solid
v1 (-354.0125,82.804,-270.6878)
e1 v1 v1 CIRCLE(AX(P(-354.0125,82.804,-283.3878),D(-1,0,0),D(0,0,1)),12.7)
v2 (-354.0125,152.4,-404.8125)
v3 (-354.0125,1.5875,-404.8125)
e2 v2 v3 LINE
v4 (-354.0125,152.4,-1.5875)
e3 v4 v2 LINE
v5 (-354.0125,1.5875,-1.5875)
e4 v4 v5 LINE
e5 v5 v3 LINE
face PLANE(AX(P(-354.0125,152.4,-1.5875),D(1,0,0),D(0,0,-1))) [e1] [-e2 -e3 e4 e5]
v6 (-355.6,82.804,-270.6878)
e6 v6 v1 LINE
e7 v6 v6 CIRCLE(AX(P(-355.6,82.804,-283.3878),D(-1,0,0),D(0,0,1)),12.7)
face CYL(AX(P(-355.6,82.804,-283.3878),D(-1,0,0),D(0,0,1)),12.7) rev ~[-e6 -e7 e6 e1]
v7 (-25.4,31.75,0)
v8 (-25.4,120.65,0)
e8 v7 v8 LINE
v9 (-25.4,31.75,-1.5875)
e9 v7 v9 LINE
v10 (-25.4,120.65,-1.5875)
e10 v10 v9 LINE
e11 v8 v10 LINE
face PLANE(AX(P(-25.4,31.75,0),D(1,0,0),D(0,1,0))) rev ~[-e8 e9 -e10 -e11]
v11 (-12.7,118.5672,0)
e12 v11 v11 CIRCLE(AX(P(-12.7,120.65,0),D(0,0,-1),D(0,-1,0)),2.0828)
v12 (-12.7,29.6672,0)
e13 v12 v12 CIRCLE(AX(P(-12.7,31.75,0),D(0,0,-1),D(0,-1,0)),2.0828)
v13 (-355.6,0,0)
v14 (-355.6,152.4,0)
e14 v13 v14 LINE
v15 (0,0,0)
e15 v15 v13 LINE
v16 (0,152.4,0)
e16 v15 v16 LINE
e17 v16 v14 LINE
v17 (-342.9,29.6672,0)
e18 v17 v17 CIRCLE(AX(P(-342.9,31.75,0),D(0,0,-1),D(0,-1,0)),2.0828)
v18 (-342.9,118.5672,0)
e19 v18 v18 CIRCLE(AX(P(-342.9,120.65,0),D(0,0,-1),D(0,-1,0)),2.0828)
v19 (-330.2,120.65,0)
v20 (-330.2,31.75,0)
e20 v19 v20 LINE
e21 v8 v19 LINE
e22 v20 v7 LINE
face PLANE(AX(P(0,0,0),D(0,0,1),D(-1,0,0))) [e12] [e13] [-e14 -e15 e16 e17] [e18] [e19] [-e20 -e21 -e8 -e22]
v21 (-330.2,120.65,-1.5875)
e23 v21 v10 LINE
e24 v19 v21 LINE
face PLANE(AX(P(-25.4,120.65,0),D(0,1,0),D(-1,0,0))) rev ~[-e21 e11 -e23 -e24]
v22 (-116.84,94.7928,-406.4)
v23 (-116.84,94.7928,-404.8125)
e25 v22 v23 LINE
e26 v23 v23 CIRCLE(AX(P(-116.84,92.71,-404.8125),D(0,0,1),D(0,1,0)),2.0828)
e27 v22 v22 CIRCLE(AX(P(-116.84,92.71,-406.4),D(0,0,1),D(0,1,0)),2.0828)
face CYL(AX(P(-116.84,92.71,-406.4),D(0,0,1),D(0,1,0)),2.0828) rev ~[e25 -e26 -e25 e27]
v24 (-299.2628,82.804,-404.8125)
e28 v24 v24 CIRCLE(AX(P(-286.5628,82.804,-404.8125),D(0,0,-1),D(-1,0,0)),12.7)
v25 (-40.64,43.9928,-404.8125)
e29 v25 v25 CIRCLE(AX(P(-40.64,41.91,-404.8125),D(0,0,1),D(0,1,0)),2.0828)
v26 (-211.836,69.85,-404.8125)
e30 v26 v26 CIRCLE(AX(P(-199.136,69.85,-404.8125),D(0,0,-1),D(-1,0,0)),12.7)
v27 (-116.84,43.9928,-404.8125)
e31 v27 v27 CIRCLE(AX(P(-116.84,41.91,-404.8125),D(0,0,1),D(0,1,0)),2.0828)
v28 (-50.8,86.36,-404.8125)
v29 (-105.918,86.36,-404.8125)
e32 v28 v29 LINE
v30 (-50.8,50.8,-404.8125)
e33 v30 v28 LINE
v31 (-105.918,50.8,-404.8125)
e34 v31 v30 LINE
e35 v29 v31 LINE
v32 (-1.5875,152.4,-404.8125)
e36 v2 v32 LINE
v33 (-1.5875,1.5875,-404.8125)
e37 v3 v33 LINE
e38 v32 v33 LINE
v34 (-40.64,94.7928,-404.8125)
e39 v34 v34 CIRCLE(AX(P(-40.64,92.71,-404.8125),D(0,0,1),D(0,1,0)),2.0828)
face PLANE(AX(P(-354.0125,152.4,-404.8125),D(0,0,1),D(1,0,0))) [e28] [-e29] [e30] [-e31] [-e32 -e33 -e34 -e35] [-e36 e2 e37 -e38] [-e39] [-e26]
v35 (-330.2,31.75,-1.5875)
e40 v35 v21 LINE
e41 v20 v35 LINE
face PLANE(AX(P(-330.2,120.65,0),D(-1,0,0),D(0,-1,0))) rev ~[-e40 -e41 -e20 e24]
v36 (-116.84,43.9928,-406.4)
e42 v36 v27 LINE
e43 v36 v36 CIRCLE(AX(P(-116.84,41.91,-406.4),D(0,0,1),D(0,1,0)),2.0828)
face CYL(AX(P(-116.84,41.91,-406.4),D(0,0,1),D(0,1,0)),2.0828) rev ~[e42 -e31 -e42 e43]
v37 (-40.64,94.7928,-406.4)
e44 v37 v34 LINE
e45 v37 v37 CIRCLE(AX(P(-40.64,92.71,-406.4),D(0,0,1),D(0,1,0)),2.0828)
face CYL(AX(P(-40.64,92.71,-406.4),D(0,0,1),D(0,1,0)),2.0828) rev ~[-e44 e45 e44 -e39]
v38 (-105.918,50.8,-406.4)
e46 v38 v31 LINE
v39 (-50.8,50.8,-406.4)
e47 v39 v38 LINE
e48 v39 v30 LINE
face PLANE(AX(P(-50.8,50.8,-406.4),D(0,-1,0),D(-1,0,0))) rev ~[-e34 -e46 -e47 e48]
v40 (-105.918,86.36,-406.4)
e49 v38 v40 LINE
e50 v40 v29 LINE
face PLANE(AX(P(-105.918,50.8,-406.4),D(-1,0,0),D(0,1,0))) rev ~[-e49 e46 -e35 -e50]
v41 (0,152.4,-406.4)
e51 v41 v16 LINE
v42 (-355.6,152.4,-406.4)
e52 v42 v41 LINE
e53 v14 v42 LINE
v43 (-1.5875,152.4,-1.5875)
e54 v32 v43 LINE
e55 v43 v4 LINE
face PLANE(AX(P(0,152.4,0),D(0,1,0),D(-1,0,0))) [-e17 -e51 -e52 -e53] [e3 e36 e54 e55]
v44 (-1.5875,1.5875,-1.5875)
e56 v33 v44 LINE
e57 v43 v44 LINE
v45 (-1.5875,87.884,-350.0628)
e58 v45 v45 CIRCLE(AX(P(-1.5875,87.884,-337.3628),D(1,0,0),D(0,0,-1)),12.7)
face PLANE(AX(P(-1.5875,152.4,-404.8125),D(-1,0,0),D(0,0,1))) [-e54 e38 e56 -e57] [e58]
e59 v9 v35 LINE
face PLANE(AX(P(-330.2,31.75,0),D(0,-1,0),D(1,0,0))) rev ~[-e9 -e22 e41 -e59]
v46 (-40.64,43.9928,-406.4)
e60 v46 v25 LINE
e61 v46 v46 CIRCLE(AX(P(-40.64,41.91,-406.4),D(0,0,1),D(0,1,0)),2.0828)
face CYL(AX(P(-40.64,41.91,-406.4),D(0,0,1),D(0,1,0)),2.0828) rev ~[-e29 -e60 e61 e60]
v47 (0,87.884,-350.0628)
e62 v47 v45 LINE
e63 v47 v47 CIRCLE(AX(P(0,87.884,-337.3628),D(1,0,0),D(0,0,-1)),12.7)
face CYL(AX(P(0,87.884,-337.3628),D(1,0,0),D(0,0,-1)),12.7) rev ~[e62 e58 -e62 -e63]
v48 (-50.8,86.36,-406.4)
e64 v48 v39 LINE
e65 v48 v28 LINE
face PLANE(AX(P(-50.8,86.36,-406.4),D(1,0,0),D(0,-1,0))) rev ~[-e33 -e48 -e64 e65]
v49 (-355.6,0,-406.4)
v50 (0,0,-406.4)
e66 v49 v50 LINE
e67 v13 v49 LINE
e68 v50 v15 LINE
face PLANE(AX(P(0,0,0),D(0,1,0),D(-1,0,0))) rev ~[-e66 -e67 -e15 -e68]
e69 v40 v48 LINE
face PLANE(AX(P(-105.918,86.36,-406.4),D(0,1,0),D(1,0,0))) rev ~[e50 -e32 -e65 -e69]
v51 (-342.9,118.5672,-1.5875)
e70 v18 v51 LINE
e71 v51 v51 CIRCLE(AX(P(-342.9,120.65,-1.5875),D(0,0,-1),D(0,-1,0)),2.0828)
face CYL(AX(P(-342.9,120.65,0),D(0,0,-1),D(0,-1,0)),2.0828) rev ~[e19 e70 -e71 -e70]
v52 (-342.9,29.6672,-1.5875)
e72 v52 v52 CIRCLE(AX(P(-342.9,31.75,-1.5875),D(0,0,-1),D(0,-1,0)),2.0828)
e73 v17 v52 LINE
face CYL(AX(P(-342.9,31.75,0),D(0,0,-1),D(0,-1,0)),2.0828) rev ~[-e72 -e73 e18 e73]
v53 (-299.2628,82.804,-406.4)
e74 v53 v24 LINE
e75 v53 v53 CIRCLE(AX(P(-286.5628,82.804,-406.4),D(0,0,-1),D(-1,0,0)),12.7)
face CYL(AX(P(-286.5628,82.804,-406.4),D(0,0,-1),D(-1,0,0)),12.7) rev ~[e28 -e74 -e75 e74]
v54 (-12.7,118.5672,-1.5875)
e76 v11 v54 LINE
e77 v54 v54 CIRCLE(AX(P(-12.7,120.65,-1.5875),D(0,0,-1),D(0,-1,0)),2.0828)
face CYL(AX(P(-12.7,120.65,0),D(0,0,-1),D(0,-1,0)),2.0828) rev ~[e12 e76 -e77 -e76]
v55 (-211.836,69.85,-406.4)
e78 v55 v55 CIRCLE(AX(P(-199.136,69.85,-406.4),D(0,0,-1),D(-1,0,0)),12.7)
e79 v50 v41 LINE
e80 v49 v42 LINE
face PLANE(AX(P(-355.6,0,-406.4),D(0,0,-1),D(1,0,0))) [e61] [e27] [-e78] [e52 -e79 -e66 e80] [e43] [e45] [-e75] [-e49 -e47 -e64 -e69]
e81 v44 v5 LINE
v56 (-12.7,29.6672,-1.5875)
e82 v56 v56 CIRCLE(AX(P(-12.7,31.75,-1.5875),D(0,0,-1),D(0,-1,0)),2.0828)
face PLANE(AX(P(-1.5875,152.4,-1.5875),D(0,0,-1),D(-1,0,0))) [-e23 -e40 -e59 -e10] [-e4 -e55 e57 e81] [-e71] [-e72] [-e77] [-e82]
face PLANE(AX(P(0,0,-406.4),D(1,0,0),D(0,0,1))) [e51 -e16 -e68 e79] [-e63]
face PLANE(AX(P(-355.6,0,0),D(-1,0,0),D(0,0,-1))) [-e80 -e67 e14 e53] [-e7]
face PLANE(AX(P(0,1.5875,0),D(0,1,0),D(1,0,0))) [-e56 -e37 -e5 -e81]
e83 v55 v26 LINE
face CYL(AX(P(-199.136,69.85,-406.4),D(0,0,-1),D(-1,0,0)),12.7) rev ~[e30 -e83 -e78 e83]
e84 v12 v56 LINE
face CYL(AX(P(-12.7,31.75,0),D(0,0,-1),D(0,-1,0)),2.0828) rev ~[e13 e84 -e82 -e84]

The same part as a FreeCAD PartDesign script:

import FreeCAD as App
import Part
import Sketcher
Q = App.Units.Quantity

doc = App.newDocument("Part")
body = doc.addObject("PartDesign::Body", "Body")

# Sketch on XZ plane
sketch1 = body.newObject("Sketcher::SketchObject", "Sketch")
sketch1.AttachmentSupport = (doc.getObject("XZ_Plane"), [""])
sketch1.MapMode = "FlatFace"
sketch1.addGeometry([
    Part.LineSegment(App.Vector(-355.6, 0, 0), App.Vector(0, 0, 0)),
    Part.LineSegment(App.Vector(0, 0, 0), App.Vector(0, -406.4, 0)),
    Part.LineSegment(App.Vector(0, -406.4, 0), App.Vector(-355.6, -406.4, 0)),
    Part.LineSegment(App.Vector(-355.6, -406.4, 0), App.Vector(-355.6, 0, 0)),
], False)
sketch1.addConstraint([
    Sketcher.Constraint("Coincident", 0, 2, 1, 1),
    Sketcher.Constraint("Coincident", 1, 2, 2, 1),
    Sketcher.Constraint("Coincident", 2, 2, 3, 1),
    Sketcher.Constraint("Coincident", 3, 2, 0, 1),
    Sketcher.Constraint("Horizontal", 0),
    Sketcher.Constraint("Vertical", 1),
    Sketcher.Constraint("Horizontal", 2),
    Sketcher.Constraint("Vertical", 3),
    Sketcher.Constraint("Coincident", 0, 2, -1, 1),
    Sketcher.Constraint("DistanceX", 0, 1, 0, 2, Q("14 in")),
    Sketcher.Constraint("DistanceY", 1, 2, 1, 1, Q("16 in")),
])
pad1 = body.newObject("PartDesign::Pad", "Pad")
pad1.Profile = sketch1
pad1.Length = Q("6 in")
pad1.Reversed = True

# Sketch on XZ plane
sketch2 = body.newObject("Sketcher::SketchObject", "Sketch001")
sketch2.AttachmentSupport = (doc.getObject("XZ_Plane"), [""])
sketch2.MapMode = "FlatFace"
sketch2.AttachmentOffset = App.Placement(App.Vector(0, 0, -6 * 25.4), App.Rotation())
sketch2.addGeometry([
    Part.LineSegment(App.Vector(-354.0125, -1.5875, 0), App.Vector(-1.5875, -1.5875, 0)),
    Part.LineSegment(App.Vector(-1.5875, -1.5875, 0), App.Vector(-1.5875, -404.8125, 0)),
    Part.LineSegment(App.Vector(-1.5875, -404.8125, 0), App.Vector(-354.0125, -404.8125, 0)),
    Part.LineSegment(App.Vector(-354.0125, -404.8125, 0), App.Vector(-354.0125, -1.5875, 0)),
], False)
sketch2.addConstraint([
    Sketcher.Constraint("Coincident", 0, 2, 1, 1),
    Sketcher.Constraint("Coincident", 1, 2, 2, 1),
    Sketcher.Constraint("Coincident", 2, 2, 3, 1),
    Sketcher.Constraint("Coincident", 3, 2, 0, 1),
    Sketcher.Constraint("Horizontal", 0),
    Sketcher.Constraint("Vertical", 1),
    Sketcher.Constraint("Horizontal", 2),
    Sketcher.Constraint("Vertical", 3),
    Sketcher.Constraint("DistanceX", 0, 2, -1, 1, Q("0.0625 in")),
    Sketcher.Constraint("DistanceY", 0, 2, -1, 1, Q("0.0625 in")),
    Sketcher.Constraint("DistanceX", 0, 1, 0, 2, Q("13.875 in")),
    Sketcher.Constraint("DistanceY", 1, 2, 1, 1, Q("15.875 in")),
])
pocket1 = body.newObject("PartDesign::Pocket", "Pocket")
pocket1.Profile = sketch2
pocket1.Length = Q("5.9375 in")
pocket1.Reversed = True

# Sketch on YZ plane
sketch3 = body.newObject("Sketcher::SketchObject", "Sketch002")
sketch3.AttachmentSupport = (doc.getObject("YZ_Plane"), [""])
sketch3.MapMode = "FlatFace"
sketch3.addGeometry(Part.Circle(App.Vector(87.884, -337.3628, 0), App.Vector(0, 0, 1), 12.7), False)
sketch3.addConstraint([
    Sketcher.Constraint("Diameter", 0, Q("1 in")),
    Sketcher.Constraint("DistanceX", -1, 1, 0, 3, Q("3.46 in")),
    Sketcher.Constraint("DistanceY", 0, 3, -1, 1, Q("13.282 in")),
])
pocket2 = body.newObject("PartDesign::Pocket", "Pocket001")
pocket2.Profile = sketch3
pocket2.Length = Q("0.0625 in")

# Sketch on XY plane
sketch4 = body.newObject("Sketcher::SketchObject", "Sketch003")
sketch4.AttachmentSupport = (doc.getObject("XY_Plane"), [""])
sketch4.MapMode = "FlatFace"
sketch4.AttachmentOffset = App.Placement(App.Vector(0, 0, -16 * 25.4), App.Rotation())
sketch4.addGeometry([
    Part.Circle(App.Vector(-286.5628, 82.804, 0), App.Vector(0, 0, 1), 12.7),
    Part.Circle(App.Vector(-199.136, 69.85, 0), App.Vector(0, 0, 1), 12.7),
], False)
sketch4.addConstraint([
    Sketcher.Constraint("Equal", 0, 1),
    Sketcher.Constraint("Diameter", 0, Q("1 in")),
    Sketcher.Constraint("DistanceY", -1, 1, 0, 3, Q("3.26 in")),
    Sketcher.Constraint("DistanceX", 1, 3, -1, 1, Q("7.84 in")),
    Sketcher.Constraint("DistanceY", -1, 1, 1, 3, Q("2.75 in")),
    Sketcher.Constraint("DistanceX", 0, 3, -1, 1, Q("11.282 in")),
])
pocket3 = body.newObject("PartDesign::Pocket", "Pocket002")
pocket3.Profile = sketch4
pocket3.Length = Q("1 in")
pocket3.Reversed = True

# Sketch on XY plane
sketch5 = body.newObject("Sketcher::SketchObject", "Sketch004")
sketch5.AttachmentSupport = (doc.getObject("XY_Plane"), [""])
sketch5.MapMode = "FlatFace"
sketch5.addGeometry([
    Part.LineSegment(App.Vector(-330.2, 120.65, 0), App.Vector(-330.2, 31.75, 0)),
    Part.LineSegment(App.Vector(-330.2, 31.75, 0), App.Vector(-25.4, 31.75, 0)),
    Part.LineSegment(App.Vector(-25.4, 31.75, 0), App.Vector(-25.4, 120.65, 0)),
    Part.LineSegment(App.Vector(-25.4, 120.65, 0), App.Vector(-330.2, 120.65, 0)),
], False)
sketch5.addConstraint([
    Sketcher.Constraint("Coincident", 0, 2, 1, 1),
    Sketcher.Constraint("Coincident", 1, 2, 2, 1),
    Sketcher.Constraint("Coincident", 2, 2, 3, 1),
    Sketcher.Constraint("Coincident", 3, 2, 0, 1),
    Sketcher.Constraint("Vertical", 0),
    Sketcher.Constraint("Horizontal", 1),
    Sketcher.Constraint("Vertical", 2),
    Sketcher.Constraint("Horizontal", 3),
    Sketcher.Constraint("DistanceX", 1, 1, 1, 2, Q("12 in")),
    Sketcher.Constraint("DistanceY", 0, 2, 0, 1, Q("3.5 in")),
    Sketcher.Constraint("DistanceX", 1, 2, -1, 1, Q("1 in")),
    Sketcher.Constraint("DistanceY", -1, 1, 0, 2, Q("1.25 in")),
])
pocket4 = body.newObject("PartDesign::Pocket", "Pocket003")
pocket4.Profile = sketch5
pocket4.Length = Q("1 in")

# Sketch on XY plane
sketch6 = body.newObject("Sketcher::SketchObject", "Sketch005")
sketch6.AttachmentSupport = (doc.getObject("XY_Plane"), [""])
sketch6.MapMode = "FlatFace"
sketch6.AttachmentOffset = App.Placement(App.Vector(0, 0, -16 * 25.4), App.Rotation())
sketch6.addGeometry([
    Part.LineSegment(App.Vector(-50.8, 86.36, 0), App.Vector(-50.8, 50.8, 0)),
    Part.LineSegment(App.Vector(-50.8, 50.8, 0), App.Vector(-105.918, 50.8, 0)),
    Part.LineSegment(App.Vector(-105.918, 50.8, 0), App.Vector(-105.918, 86.36, 0)),
    Part.LineSegment(App.Vector(-105.918, 86.36, 0), App.Vector(-50.8, 86.36, 0)),
], False)
sketch6.addConstraint([
    Sketcher.Constraint("Coincident", 0, 2, 1, 1),
    Sketcher.Constraint("Coincident", 1, 2, 2, 1),
    Sketcher.Constraint("Coincident", 2, 2, 3, 1),
    Sketcher.Constraint("Coincident", 3, 2, 0, 1),
    Sketcher.Constraint("Vertical", 0),
    Sketcher.Constraint("Horizontal", 1),
    Sketcher.Constraint("Vertical", 2),
    Sketcher.Constraint("Horizontal", 3),
    Sketcher.Constraint("DistanceY", 0, 2, 0, 1, Q("1.4 in")),
    Sketcher.Constraint("DistanceX", 0, 2, -1, 1, Q("2 in")),
    Sketcher.Constraint("DistanceY", -1, 1, 0, 2, Q("2 in")),
    Sketcher.Constraint("DistanceX", 1, 2, 1, 1, Q("2.17 in")),
])
pocket5 = body.newObject("PartDesign::Pocket", "Pocket004")
pocket5.Profile = sketch6
pocket5.Length = Q("1 in")
pocket5.Reversed = True

# Sketch on YZ plane
sketch7 = body.newObject("Sketcher::SketchObject", "Sketch006")
sketch7.AttachmentSupport = (doc.getObject("YZ_Plane"), [""])
sketch7.MapMode = "FlatFace"
sketch7.AttachmentOffset = App.Placement(App.Vector(0, 0, -14 * 25.4), App.Rotation())
sketch7.addGeometry(Part.Circle(App.Vector(82.804, -283.3878, 0), App.Vector(0, 0, 1), 12.7), False)
sketch7.addConstraint([
    Sketcher.Constraint("Diameter", 0, Q("1 in")),
    Sketcher.Constraint("DistanceX", -1, 1, 0, 3, Q("3.26 in")),
    Sketcher.Constraint("DistanceY", 0, 3, -1, 1, Q("11.157 in")),
])
pocket6 = body.newObject("PartDesign::Pocket", "Pocket005")
pocket6.Profile = sketch7
pocket6.Length = Q("0.0625 in")
pocket6.Reversed = True

# Sketch on XY plane
sketch8 = body.newObject("Sketcher::SketchObject", "Sketch007")
sketch8.AttachmentSupport = (doc.getObject("XY_Plane"), [""])
sketch8.MapMode = "FlatFace"
sketch8.addGeometry([
    Part.Circle(App.Vector(-12.7, 120.65, 0), App.Vector(0, 0, 1), 2.0828),
    Part.Circle(App.Vector(-12.7, 31.75, 0), App.Vector(0, 0, 1), 2.0828),
    Part.Circle(App.Vector(-342.9, 31.75, 0), App.Vector(0, 0, 1), 2.0828),
    Part.Circle(App.Vector(-342.9, 120.65, 0), App.Vector(0, 0, 1), 2.0828),
], False)
sketch8.addConstraint([
    Sketcher.Constraint("Equal", 0, 1),
    Sketcher.Constraint("Equal", 1, 2),
    Sketcher.Constraint("Equal", 2, 3),
    Sketcher.Constraint("Horizontal", 1, 3, 2, 3),
    Sketcher.Constraint("Horizontal", 0, 3, 3, 3),
    Sketcher.Constraint("Vertical", 0, 3, 1, 3),
    Sketcher.Constraint("Vertical", 2, 3, 3, 3),
    Sketcher.Constraint("Diameter", 0, Q("0.164 in")),
    Sketcher.Constraint("DistanceX", 2, 3, 1, 3, Q("13 in")),
    Sketcher.Constraint("DistanceX", 0, 3, -1, 1, Q("0.5 in")),
    Sketcher.Constraint("DistanceY", 1, 3, 0, 3, Q("3.5 in")),
    Sketcher.Constraint("DistanceY", -1, 1, 0, 3, Q("4.75 in")),
])
doc.recompute()
hole = body.newObject("PartDesign::Hole", "Hole")
hole.Profile = sketch8
hole.ThreadType = "None"
hole.Diameter = Q("0.164 in")
hole.DepthType = "Dimension"
hole.Depth = Q("0.25 in")
hole.DrillPoint = "Angled"
hole.DrillPointAngle = 118

# Sketch on XY plane
sketch9 = body.newObject("Sketcher::SketchObject", "Sketch008")
sketch9.AttachmentSupport = (doc.getObject("XY_Plane"), [""])
sketch9.MapMode = "FlatFace"
sketch9.AttachmentOffset = App.Placement(App.Vector(0, 0, -16 * 25.4), App.Rotation())
sketch9.addGeometry([
    Part.Circle(App.Vector(-116.84, 92.71, 0), App.Vector(0, 0, 1), 2.0828),
    Part.Circle(App.Vector(-116.84, 41.91, 0), App.Vector(0, 0, 1), 2.0828),
    Part.Circle(App.Vector(-40.64, 41.91, 0), App.Vector(0, 0, 1), 2.0828),
    Part.Circle(App.Vector(-40.64, 92.71, 0), App.Vector(0, 0, 1), 2.0828),
], False)
sketch9.addConstraint([
    Sketcher.Constraint("Equal", 0, 1),
    Sketcher.Constraint("Equal", 1, 2),
    Sketcher.Constraint("Equal", 2, 3),
    Sketcher.Constraint("Horizontal", 1, 3, 2, 3),
    Sketcher.Constraint("Horizontal", 0, 3, 3, 3),
    Sketcher.Constraint("Vertical", 0, 3, 1, 3),
    Sketcher.Constraint("Vertical", 2, 3, 3, 3),
    Sketcher.Constraint("Diameter", 0, Q("0.164 in")),
    Sketcher.Constraint("DistanceY", 1, 3, 0, 3, Q("2 in")),
    Sketcher.Constraint("DistanceX", 1, 3, 2, 3, Q("3 in")),
    Sketcher.Constraint("DistanceX", 0, 3, -1, 1, Q("4.6 in")),
    Sketcher.Constraint("DistanceY", -1, 1, 0, 3, Q("3.65 in")),
])
doc.recompute()
hole2 = body.newObject("PartDesign::Hole", "Hole001")
hole2.Profile = sketch9
hole2.ThreadType = "None"
hole2.Diameter = Q("0.164 in")
hole2.DepthType = "Dimension"
hole2.Depth = Q("0.25 in")
hole2.DrillPoint = "Angled"
hole2.DrillPointAngle = 118
hole2.Reversed = True

doc.recompute()
